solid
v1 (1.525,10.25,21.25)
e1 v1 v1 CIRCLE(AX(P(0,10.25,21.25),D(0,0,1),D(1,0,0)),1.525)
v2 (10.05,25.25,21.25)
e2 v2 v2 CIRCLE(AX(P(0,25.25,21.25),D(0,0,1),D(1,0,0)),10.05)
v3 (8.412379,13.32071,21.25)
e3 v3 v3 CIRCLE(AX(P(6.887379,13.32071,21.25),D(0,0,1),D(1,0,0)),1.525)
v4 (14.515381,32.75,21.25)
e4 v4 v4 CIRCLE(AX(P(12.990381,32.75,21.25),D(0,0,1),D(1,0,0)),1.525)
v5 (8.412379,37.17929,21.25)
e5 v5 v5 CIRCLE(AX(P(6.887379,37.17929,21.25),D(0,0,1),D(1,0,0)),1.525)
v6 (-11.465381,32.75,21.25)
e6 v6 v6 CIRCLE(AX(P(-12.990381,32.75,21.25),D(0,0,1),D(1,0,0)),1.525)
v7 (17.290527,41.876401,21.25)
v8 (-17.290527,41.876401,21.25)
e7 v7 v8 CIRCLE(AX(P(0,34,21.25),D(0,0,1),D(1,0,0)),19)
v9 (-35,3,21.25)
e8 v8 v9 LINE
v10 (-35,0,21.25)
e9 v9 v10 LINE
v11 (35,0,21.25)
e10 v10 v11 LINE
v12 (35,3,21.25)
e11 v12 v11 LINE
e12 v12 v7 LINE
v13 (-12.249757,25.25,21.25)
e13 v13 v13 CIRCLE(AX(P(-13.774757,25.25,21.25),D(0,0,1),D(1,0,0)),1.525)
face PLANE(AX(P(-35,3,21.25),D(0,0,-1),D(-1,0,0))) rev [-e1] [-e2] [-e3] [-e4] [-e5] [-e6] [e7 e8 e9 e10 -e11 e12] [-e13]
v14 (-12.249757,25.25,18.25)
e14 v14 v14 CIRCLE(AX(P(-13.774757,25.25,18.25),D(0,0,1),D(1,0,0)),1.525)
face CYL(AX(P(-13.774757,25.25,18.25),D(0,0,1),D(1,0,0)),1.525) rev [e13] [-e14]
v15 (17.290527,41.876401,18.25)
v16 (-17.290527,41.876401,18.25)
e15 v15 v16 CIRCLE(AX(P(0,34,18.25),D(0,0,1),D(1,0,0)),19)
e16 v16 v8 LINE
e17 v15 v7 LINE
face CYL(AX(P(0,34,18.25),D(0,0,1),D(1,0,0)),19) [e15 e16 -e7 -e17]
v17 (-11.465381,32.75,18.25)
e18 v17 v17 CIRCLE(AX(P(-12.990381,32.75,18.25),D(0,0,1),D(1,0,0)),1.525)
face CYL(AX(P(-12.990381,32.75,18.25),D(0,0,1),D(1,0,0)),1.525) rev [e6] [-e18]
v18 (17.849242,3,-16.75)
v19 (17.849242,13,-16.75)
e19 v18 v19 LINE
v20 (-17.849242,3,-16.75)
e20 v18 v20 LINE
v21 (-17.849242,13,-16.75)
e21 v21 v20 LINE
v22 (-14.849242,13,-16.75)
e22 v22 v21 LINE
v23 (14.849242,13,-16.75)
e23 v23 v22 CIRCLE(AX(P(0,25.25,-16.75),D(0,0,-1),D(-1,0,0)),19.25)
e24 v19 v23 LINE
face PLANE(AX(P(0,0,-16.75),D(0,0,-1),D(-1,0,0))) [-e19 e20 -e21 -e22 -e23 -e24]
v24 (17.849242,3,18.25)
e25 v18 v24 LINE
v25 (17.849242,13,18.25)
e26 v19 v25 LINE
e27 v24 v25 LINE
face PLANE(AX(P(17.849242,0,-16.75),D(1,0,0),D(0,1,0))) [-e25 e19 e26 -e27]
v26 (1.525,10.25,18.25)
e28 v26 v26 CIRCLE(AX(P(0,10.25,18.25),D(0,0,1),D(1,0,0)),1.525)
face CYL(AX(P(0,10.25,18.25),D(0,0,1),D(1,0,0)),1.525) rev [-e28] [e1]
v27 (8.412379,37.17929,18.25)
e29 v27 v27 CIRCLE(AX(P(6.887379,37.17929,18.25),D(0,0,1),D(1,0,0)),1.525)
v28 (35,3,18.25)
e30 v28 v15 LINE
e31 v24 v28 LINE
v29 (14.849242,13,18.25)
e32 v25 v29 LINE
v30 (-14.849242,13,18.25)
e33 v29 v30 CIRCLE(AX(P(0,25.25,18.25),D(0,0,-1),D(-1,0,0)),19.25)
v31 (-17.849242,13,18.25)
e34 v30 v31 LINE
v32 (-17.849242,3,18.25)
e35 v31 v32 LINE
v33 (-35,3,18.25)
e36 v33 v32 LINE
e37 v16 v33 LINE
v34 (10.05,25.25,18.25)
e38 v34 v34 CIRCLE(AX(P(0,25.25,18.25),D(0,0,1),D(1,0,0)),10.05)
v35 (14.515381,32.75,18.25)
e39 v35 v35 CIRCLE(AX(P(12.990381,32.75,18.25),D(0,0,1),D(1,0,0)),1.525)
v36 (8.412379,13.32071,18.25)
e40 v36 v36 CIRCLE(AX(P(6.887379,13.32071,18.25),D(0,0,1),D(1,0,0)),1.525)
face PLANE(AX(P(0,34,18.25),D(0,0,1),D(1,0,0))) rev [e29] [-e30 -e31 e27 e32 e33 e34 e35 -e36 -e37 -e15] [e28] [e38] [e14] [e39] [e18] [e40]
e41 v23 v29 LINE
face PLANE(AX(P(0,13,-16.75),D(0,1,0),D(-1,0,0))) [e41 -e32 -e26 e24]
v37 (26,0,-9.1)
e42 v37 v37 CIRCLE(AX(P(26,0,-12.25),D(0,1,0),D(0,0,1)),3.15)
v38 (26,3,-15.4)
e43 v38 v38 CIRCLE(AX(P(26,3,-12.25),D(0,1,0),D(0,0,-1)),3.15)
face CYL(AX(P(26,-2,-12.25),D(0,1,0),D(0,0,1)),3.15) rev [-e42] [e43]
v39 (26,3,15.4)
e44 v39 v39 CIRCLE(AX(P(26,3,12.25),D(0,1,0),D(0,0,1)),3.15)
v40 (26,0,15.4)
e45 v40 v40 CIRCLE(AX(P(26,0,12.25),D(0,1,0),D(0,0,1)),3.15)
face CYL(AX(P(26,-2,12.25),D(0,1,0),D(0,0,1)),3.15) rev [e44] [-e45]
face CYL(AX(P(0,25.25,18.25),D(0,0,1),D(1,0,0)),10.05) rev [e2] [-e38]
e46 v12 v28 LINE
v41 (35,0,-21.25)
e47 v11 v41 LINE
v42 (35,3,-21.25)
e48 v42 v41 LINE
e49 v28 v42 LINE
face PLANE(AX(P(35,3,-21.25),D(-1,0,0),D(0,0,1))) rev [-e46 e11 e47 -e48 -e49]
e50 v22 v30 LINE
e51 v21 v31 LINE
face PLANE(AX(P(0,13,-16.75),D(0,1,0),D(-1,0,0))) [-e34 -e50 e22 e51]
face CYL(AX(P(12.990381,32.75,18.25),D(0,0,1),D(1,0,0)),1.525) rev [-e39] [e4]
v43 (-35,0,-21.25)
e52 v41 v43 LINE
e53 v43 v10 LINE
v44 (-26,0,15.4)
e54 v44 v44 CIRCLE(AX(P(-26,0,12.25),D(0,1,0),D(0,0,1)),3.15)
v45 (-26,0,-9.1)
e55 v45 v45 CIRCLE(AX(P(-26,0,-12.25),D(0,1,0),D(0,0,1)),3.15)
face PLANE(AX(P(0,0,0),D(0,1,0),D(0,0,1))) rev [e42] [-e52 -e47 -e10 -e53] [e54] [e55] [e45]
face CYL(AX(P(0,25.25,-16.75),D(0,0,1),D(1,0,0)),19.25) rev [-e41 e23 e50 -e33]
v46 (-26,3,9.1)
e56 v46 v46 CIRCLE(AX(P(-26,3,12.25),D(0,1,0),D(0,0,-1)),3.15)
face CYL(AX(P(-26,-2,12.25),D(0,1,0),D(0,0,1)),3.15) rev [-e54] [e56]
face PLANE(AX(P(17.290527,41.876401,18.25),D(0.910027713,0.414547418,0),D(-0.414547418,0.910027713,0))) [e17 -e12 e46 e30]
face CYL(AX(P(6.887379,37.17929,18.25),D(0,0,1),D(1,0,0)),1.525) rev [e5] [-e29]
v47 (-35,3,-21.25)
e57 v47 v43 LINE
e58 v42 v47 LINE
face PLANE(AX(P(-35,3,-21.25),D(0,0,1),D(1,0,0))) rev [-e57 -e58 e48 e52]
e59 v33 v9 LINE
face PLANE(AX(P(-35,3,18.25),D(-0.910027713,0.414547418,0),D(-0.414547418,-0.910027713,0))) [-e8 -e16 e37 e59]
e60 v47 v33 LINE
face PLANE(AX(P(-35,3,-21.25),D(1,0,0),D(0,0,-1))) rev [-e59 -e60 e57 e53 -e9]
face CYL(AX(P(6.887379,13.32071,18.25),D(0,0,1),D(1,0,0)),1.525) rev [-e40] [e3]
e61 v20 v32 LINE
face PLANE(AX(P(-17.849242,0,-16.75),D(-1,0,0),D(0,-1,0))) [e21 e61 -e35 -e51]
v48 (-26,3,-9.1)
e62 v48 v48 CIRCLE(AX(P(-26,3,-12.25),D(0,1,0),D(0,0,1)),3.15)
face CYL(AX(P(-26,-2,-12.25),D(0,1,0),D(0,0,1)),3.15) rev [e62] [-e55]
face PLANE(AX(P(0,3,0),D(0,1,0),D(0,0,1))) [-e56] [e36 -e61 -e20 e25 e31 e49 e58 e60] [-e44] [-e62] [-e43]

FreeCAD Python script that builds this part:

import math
import FreeCAD as App
import Part
import Sketcher
Q = App.Units.Quantity

doc = App.newDocument("Part")
body = doc.addObject("PartDesign::Body", "Body")

# Sketch on XZ plane
sketch1 = body.newObject("Sketcher::SketchObject", "Sketch")
sketch1.AttachmentSupport = (doc.getObject("XZ_Plane"), [""])
sketch1.MapMode = "FlatFace"
sketch1.addGeometry(Part.LineSegment(App.Vector(-35, -21.25, 0), App.Vector(-35, 21.25, 0)), False)
sketch1.addGeometry(Part.LineSegment(App.Vector(-35, 21.25, 0), App.Vector(35, 21.25, 0)), False)
sketch1.addGeometry(Part.LineSegment(App.Vector(35, 21.25, 0), App.Vector(35, -21.25, 0)), False)
sketch1.addGeometry(Part.LineSegment(App.Vector(35, -21.25, 0), App.Vector(-35, -21.25, 0)), False)
sketch1.addConstraint(Sketcher.Constraint("Coincident", 0, 2, 1, 1))
sketch1.addConstraint(Sketcher.Constraint("Coincident", 1, 2, 2, 1))
sketch1.addConstraint(Sketcher.Constraint("Coincident", 2, 2, 3, 1))
sketch1.addConstraint(Sketcher.Constraint("Coincident", 3, 2, 0, 1))
sketch1.addConstraint(Sketcher.Constraint("Vertical", 0))
sketch1.addConstraint(Sketcher.Constraint("Horizontal", 1))
sketch1.addConstraint(Sketcher.Constraint("Vertical", 2))
sketch1.addConstraint(Sketcher.Constraint("Horizontal", 3))
sketch1.addConstraint(Sketcher.Constraint("Symmetric", 0, 2, 2, 2, -1, 1))
sketch1.addConstraint(Sketcher.Constraint("DistanceX", 1, 1, 1, 2, Q("70 mm")))
sketch1.addConstraint(Sketcher.Constraint("DistanceY", 0, 1, 0, 2, Q("42.5 mm")))
pad1 = body.newObject("PartDesign::Pad", "Pad")
pad1.Profile = sketch1
pad1.Length = 3
pad1.Reversed = True

# Sketch on XY plane
sketch2 = body.newObject("Sketcher::SketchObject", "Sketch001")
sketch2.AttachmentSupport = (doc.getObject("XY_Plane"), [""])
sketch2.MapMode = "FlatFace"
sketch2.AttachmentOffset = App.Placement(App.Vector(0, 0, 21.25), App.Rotation())
sketch2.addGeometry(Part.LineSegment(App.Vector(-17.290527, 41.876401, 0), App.Vector(-35, 3, 0)), False)
sketch2.addGeometry(Part.LineSegment(App.Vector(-35, 3, 0), App.Vector(35, 3, 0)), False)
sketch2.addGeometry(Part.LineSegment(App.Vector(35, 3, 0), App.Vector(17.290527, 41.876401, 0)), False)
sketch2.addGeometry(Part.ArcOfCircle(Part.Circle(App.Vector(0, 34, 0), App.Vector(0, 0, 1), 19), math.radians(24.490818), math.radians(155.509182)), False)
sketch2.addGeometry(Part.Circle(App.Vector(0, 10.25, 0), App.Vector(0, 0, 1), 1.525), False)
sketch2.addGeometry(Part.Circle(App.Vector(6.887379, 13.32071, 0), App.Vector(0, 0, 1), 1.525), False)
sketch2.addGeometry(Part.Circle(App.Vector(0, 25.25, 0), App.Vector(0, 0, 1), 10.05), False)
sketch2.addGeometry(Part.Circle(App.Vector(12.990381, 32.75, 0), App.Vector(0, 0, 1), 1.525), False)
sketch2.addGeometry(Part.Circle(App.Vector(6.887379, 37.17929, 0), App.Vector(0, 0, 1), 1.525), False)
sketch2.addGeometry(Part.Circle(App.Vector(-13.774757, 25.25, 0), App.Vector(0, 0, 1), 1.525), False)
sketch2.addGeometry(Part.Circle(App.Vector(-12.990381, 32.75, 0), App.Vector(0, 0, 1), 1.525), False)
sketch2.addConstraint(Sketcher.Constraint("Coincident", 0, 2, 1, 1))
sketch2.addConstraint(Sketcher.Constraint("Coincident", 1, 2, 2, 1))
sketch2.addConstraint(Sketcher.Constraint("Tangent", 2, 2, 3, 1))
sketch2.addConstraint(Sketcher.Constraint("Tangent", 3, 2, 0, 1))
sketch2.addConstraint(Sketcher.Constraint("Horizontal", 1))
sketch2.addConstraint(Sketcher.Constraint("Equal", 4, 5))
sketch2.addConstraint(Sketcher.Constraint("Equal", 5, 7))
sketch2.addConstraint(Sketcher.Constraint("Equal", 7, 8))
sketch2.addConstraint(Sketcher.Constraint("Equal", 8, 9))
sketch2.addConstraint(Sketcher.Constraint("Equal", 9, 10))
sketch2.addConstraint(Sketcher.Constraint("Symmetric", 7, 3, 10, 3, -2))
sketch2.addConstraint(Sketcher.Constraint("Symmetric", 2, 2, 3, 2, -2))
sketch2.addConstraint(Sketcher.Constraint("PointOnObject", 4, 3, -2))
sketch2.addConstraint(Sketcher.Constraint("PointOnObject", 6, 3, -2))
sketch2.addConstraint(Sketcher.Constraint("Horizontal", 6, 3, 9, 3))
sketch2.addConstraint(Sketcher.Constraint("Vertical", 5, 3, 8, 3))
sketch2.addConstraint(Sketcher.Constraint("Radius", 3, Q("19 mm")))
sketch2.addConstraint(Sketcher.Constraint("Diameter", 6, Q("20.1 mm")))
sketch2.addConstraint(Sketcher.Constraint("Diameter", 4, Q("3.05 mm")))
sketch2.addConstraint(Sketcher.Constraint("DistanceX", 1, 1, 1, 2, Q("70 mm")))
sketch2.addConstraint(Sketcher.Constraint("DistanceY", -1, 1, 3, 3, Q("34 mm")))
sketch2.addConstraint(Sketcher.Constraint("DistanceY", -1, 1, 0, 2, Q("3 mm")))
sketch2.addConstraint(Sketcher.Constraint("DistanceY", 4, 3, 6, 3, Q("15 mm")))
sketch2.addConstraint(Sketcher.Constraint("DistanceY", 6, 3, 7, 3, Q("7.5 mm")))
sketch2.addConstraint(Sketcher.Constraint("DistanceY", -1, 1, 4, 3, Q("10.25 mm")))
sketch2.addConstraint(Sketcher.Constraint("DistanceX", -1, 1, 5, 3, Q("6.887379 mm")))
sketch2.addConstraint(Sketcher.Constraint("DistanceY", -1, 1, 5, 3, Q("13.32071 mm")))
sketch2.addConstraint(Sketcher.Constraint("DistanceX", -1, 1, 7, 3, Q("12.990381 mm")))
sketch2.addConstraint(Sketcher.Constraint("DistanceY", -1, 1, 8, 3, Q("37.17929 mm")))
sketch2.addConstraint(Sketcher.Constraint("DistanceX", 3, 2, 9, 3, Q("3.515769 mm")))
pad2 = body.newObject("PartDesign::Pad", "Pad001")
pad2.Profile = sketch2
pad2.Length = 3
pad2.Reversed = True

# Sketch on XY plane
sketch3 = body.newObject("Sketcher::SketchObject", "Sketch002")
sketch3.AttachmentSupport = (doc.getObject("XY_Plane"), [""])
sketch3.MapMode = "FlatFace"
sketch3.AttachmentOffset = App.Placement(App.Vector(0, 0, 18.25), App.Rotation())
sketch3.addGeometry(Part.LineSegment(App.Vector(17.849242, 13, 0), App.Vector(17.849242, 3, 0)), False)
sketch3.addGeometry(Part.LineSegment(App.Vector(17.849242, 3, 0), App.Vector(-17.849242, 3, 0)), False)
sketch3.addGeometry(Part.LineSegment(App.Vector(-17.849242, 3, 0), App.Vector(-17.849242, 13, 0)), False)
sketch3.addGeometry(Part.LineSegment(App.Vector(-17.849242, 13, 0), App.Vector(-14.849242, 13, 0)), False)
sketch3.addGeometry(Part.ArcOfCircle(Part.Circle(App.Vector(0, 25.25, 0), App.Vector(0, 0, 1), 19.25), math.radians(-140.478804), math.radians(-39.521196)), False)
sketch3.addGeometry(Part.LineSegment(App.Vector(14.849242, 13, 0), App.Vector(17.849242, 13, 0)), False)
sketch3.addConstraint(Sketcher.Constraint("Coincident", 0, 2, 1, 1))
sketch3.addConstraint(Sketcher.Constraint("Coincident", 1, 2, 2, 1))
sketch3.addConstraint(Sketcher.Constraint("Coincident", 2, 2, 3, 1))
sketch3.addConstraint(Sketcher.Constraint("Coincident", 3, 2, 4, 1))
sketch3.addConstraint(Sketcher.Constraint("Coincident", 4, 2, 5, 1))
sketch3.addConstraint(Sketcher.Constraint("Coincident", 5, 2, 0, 1))
sketch3.addConstraint(Sketcher.Constraint("Vertical", 0))
sketch3.addConstraint(Sketcher.Constraint("Horizontal", 1))
sketch3.addConstraint(Sketcher.Constraint("Vertical", 2))
sketch3.addConstraint(Sketcher.Constraint("Horizontal", 3))
sketch3.addConstraint(Sketcher.Constraint("Horizontal", 5))
sketch3.addConstraint(Sketcher.Constraint("Symmetric", 3, 2, 4, 2, -2))
sketch3.addConstraint(Sketcher.Constraint("Equal", 3, 5))
sketch3.addConstraint(Sketcher.Constraint("DistanceX", 3, 1, 3, 2, Q("3 mm")))
sketch3.addConstraint(Sketcher.Constraint("DistanceY", 0, 2, 0, 1, Q("10 mm")))
sketch3.addConstraint(Sketcher.Constraint("Radius", 4, Q("19.25 mm")))
sketch3.addConstraint(Sketcher.Constraint("DistanceY", -1, 1, 0, 2, Q("3 mm")))
sketch3.addConstraint(Sketcher.Constraint("DistanceY", -1, 1, 4, 3, Q("25.25 mm")))
pad3 = body.newObject("PartDesign::Pad", "Pad002")
pad3.Profile = sketch3
pad3.Length = 35
pad3.Reversed = True

# Sketch on XZ plane
sketch4 = body.newObject("Sketcher::SketchObject", "Sketch003")
sketch4.AttachmentSupport = (doc.getObject("XZ_Plane"), [""])
sketch4.MapMode = "FlatFace"
sketch4.AttachmentOffset = App.Placement(App.Vector(0, 0, -3), App.Rotation())
sketch4.addGeometry(Part.Circle(App.Vector(-26, -12.25, 0), App.Vector(0, 0, 1), 3.15), False)
sketch4.addGeometry(Part.Circle(App.Vector(26, -12.25, 0), App.Vector(0, 0, 1), 3.15), False)
sketch4.addGeometry(Part.Circle(App.Vector(26, 12.25, 0), App.Vector(0, 0, 1), 3.15), False)
sketch4.addGeometry(Part.Circle(App.Vector(-26, 12.25, 0), App.Vector(0, 0, 1), 3.15), False)
sketch4.addConstraint(Sketcher.Constraint("Equal", 0, 1))
sketch4.addConstraint(Sketcher.Constraint("Equal", 1, 2))
sketch4.addConstraint(Sketcher.Constraint("Equal", 2, 3))
sketch4.addConstraint(Sketcher.Constraint("Symmetric", 0, 3, 2, 3, -1, 1))
sketch4.addConstraint(Sketcher.Constraint("Symmetric", 1, 3, 3, 3, -1, 1))
sketch4.addConstraint(Sketcher.Constraint("Symmetric", 0, 3, 1, 3, -2))
sketch4.addConstraint(Sketcher.Constraint("Diameter", 0, Q("6.3 mm")))
sketch4.addConstraint(Sketcher.Constraint("DistanceX", 0, 3, -1, 1, Q("26 mm")))
sketch4.addConstraint(Sketcher.Constraint("DistanceY", 1, 3, 2, 3, Q("24.5 mm")))
pocket1 = body.newObject("PartDesign::Pocket", "Pocket")
pocket1.Profile = sketch4
pocket1.Length = 5
pocket1.Reversed = True

doc.recompute()
